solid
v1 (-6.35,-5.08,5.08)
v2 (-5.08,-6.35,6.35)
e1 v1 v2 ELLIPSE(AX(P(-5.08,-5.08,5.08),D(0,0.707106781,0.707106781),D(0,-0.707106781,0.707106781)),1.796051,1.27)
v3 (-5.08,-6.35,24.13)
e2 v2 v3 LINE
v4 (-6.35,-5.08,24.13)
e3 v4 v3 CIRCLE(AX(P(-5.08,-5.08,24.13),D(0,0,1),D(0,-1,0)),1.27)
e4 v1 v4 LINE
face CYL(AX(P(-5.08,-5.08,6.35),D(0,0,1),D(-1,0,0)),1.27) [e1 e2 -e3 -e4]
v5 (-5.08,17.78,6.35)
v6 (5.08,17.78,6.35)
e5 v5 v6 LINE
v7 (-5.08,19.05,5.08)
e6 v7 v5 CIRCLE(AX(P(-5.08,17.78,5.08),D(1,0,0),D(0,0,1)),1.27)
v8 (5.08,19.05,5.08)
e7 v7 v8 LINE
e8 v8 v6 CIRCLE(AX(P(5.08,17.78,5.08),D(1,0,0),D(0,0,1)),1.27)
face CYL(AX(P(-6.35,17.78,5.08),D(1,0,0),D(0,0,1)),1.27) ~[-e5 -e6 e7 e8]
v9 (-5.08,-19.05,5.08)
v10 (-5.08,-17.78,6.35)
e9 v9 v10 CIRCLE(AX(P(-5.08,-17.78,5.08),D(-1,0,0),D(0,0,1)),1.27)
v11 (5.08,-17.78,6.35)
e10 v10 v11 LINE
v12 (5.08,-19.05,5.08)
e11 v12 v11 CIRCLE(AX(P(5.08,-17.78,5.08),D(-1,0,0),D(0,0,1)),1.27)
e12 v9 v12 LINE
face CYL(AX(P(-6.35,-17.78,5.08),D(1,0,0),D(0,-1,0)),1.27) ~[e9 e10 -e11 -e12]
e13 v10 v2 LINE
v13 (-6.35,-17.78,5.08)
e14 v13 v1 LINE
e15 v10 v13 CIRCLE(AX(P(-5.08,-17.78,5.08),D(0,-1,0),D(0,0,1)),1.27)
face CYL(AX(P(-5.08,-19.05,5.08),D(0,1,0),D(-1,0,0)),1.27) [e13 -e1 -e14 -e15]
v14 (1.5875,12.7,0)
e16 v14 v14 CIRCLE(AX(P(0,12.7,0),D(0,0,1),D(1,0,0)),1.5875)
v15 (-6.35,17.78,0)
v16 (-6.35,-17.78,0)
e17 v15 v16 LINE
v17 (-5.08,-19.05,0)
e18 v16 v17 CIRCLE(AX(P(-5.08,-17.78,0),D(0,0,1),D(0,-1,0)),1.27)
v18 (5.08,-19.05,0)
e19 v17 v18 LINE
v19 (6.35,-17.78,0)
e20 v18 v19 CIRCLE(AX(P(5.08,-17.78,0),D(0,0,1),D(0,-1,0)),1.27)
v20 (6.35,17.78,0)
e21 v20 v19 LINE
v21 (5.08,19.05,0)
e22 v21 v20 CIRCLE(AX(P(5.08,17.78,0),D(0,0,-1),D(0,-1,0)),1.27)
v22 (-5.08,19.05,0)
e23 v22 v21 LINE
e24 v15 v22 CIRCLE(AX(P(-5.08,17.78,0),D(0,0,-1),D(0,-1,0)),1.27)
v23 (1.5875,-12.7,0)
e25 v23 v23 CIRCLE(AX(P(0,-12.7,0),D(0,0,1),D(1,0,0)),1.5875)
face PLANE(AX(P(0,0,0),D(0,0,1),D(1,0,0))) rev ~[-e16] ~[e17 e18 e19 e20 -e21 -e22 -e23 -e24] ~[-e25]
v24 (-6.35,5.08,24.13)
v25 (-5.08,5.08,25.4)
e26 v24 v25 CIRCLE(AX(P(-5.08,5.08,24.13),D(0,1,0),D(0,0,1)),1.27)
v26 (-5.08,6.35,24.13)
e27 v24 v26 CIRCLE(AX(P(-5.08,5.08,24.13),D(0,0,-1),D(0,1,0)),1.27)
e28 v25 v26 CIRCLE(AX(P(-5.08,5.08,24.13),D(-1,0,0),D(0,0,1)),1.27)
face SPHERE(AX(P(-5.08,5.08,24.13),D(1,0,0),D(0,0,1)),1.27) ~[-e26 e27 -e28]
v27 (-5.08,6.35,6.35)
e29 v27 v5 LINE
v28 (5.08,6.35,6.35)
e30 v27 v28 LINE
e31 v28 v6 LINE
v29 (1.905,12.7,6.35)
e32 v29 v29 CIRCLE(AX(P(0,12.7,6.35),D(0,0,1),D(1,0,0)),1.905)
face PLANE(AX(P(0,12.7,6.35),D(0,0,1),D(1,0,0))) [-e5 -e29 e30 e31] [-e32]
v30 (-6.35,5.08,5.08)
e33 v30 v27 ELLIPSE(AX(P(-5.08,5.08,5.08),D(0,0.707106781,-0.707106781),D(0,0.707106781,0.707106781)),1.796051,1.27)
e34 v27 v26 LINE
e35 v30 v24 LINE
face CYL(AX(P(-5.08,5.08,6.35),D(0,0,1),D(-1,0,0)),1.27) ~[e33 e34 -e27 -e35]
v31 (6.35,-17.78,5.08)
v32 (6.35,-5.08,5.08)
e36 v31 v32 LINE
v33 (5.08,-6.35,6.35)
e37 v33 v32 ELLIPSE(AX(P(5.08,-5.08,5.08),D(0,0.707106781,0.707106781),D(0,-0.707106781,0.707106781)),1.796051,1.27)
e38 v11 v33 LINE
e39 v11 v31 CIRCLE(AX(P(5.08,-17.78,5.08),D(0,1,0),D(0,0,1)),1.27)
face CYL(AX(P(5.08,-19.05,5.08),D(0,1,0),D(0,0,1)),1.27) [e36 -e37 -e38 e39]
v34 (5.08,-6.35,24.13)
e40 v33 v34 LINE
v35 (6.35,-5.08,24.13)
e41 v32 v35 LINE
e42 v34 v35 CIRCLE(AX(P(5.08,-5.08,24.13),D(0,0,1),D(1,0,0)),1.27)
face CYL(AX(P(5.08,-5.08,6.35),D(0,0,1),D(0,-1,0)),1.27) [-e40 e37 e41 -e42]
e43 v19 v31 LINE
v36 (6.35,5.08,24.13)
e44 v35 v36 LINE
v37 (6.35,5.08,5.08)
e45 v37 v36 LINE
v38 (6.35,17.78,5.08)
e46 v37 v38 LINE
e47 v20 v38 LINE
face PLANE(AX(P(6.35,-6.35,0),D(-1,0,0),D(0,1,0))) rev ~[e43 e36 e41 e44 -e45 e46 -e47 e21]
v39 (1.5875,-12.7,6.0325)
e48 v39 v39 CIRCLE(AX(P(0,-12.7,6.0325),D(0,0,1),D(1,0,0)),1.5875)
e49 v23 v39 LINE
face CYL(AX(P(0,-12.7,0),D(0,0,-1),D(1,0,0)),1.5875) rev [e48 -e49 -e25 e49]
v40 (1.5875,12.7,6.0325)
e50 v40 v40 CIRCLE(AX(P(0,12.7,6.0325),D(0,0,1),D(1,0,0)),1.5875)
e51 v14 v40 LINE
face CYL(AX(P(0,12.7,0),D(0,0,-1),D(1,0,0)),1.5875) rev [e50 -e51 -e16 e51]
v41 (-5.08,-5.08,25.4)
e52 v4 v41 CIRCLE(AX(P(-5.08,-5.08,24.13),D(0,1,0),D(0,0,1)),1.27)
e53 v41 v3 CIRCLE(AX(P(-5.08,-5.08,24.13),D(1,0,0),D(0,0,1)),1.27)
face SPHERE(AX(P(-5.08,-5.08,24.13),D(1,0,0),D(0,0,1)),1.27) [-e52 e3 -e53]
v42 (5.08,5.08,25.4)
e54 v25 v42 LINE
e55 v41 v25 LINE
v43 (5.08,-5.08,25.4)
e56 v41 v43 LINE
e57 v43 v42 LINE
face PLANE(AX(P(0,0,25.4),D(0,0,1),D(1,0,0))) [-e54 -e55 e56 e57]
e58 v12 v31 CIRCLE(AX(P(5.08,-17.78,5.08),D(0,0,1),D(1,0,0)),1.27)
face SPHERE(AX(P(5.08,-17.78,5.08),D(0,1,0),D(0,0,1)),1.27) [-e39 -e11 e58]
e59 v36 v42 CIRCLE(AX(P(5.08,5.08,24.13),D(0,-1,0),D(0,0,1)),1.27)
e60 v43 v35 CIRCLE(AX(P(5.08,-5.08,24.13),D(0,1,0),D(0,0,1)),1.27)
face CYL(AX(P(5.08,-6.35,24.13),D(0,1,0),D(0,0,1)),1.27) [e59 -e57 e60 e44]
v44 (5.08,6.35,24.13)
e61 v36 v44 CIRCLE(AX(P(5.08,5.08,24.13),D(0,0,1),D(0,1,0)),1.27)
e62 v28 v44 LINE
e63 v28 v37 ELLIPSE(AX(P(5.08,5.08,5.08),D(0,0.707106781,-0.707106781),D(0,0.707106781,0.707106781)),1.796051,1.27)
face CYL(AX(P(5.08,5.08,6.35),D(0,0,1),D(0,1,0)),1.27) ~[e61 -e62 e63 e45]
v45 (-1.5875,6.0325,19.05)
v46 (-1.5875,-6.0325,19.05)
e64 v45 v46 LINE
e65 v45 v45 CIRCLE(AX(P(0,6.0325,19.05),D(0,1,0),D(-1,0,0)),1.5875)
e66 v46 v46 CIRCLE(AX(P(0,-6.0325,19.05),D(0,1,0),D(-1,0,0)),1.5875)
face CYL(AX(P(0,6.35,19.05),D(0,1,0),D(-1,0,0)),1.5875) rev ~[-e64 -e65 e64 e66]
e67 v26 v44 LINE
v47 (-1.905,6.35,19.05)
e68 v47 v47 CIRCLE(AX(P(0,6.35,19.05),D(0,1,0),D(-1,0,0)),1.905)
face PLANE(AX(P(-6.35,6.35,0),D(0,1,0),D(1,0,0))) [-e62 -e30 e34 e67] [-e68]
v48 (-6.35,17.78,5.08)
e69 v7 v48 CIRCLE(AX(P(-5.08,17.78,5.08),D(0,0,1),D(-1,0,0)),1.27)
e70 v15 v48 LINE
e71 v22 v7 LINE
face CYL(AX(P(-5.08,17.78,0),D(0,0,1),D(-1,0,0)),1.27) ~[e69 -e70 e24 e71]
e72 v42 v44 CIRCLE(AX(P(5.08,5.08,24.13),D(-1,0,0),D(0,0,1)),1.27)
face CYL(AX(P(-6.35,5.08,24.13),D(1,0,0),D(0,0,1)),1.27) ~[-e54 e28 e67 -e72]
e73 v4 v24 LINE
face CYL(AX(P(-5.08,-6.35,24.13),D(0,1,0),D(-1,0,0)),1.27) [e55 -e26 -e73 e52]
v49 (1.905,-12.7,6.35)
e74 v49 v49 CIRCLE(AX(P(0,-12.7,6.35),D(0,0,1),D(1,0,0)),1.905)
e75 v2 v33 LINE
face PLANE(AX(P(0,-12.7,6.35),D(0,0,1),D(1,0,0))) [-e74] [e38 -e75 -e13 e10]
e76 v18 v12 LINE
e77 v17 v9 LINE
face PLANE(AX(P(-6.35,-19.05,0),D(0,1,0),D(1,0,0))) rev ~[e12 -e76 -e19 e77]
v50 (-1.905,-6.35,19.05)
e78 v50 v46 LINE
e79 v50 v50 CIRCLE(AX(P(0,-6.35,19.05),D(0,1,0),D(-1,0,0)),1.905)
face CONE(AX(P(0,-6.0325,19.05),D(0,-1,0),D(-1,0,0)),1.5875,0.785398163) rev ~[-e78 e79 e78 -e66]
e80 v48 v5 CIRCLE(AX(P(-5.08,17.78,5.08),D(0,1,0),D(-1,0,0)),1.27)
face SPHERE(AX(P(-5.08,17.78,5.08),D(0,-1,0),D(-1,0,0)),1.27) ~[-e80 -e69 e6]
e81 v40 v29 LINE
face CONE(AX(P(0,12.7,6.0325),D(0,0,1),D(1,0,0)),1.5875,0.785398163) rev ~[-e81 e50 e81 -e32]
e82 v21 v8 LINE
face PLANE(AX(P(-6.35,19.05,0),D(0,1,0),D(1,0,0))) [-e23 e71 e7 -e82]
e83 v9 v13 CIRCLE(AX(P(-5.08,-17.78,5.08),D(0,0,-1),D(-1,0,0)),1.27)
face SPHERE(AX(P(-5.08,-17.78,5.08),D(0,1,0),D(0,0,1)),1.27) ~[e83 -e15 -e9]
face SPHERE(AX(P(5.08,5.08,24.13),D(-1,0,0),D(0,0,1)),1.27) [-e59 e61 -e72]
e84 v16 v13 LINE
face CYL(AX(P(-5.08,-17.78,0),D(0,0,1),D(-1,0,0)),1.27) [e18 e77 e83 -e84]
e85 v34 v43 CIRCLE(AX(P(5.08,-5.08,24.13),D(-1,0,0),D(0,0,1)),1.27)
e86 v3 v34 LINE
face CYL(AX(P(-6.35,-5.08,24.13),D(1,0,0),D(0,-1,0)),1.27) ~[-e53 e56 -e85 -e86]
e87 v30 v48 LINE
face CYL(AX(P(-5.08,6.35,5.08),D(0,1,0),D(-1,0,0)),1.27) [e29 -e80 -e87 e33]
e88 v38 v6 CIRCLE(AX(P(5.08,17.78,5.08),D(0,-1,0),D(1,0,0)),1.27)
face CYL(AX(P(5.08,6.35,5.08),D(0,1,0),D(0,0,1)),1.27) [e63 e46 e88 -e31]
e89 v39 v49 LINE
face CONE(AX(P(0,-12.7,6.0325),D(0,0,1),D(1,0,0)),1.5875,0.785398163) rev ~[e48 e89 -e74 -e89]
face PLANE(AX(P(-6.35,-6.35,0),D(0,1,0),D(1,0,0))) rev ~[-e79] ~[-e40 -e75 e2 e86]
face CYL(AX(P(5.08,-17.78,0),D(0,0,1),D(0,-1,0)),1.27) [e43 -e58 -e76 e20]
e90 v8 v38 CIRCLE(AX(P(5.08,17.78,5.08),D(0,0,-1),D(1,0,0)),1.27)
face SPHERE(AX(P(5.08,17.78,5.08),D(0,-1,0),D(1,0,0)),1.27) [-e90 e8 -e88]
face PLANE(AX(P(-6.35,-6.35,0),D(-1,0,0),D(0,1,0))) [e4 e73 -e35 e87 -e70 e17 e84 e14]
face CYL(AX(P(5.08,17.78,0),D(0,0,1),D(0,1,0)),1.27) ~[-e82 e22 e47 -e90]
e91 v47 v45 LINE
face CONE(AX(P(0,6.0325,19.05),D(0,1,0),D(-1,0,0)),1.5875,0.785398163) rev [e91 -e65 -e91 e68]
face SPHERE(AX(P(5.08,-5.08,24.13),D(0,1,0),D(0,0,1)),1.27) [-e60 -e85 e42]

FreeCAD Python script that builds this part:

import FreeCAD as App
import Part
import Sketcher
Q = App.Units.Quantity


def edges_at(feature, points):
    """Names of the edges that pass closest to the given points."""
    edges = feature.Shape.Edges
    near = lambda p: min(range(len(edges)), key=lambda i: edges[i].distToShape(Part.Vertex(*p))[0])
    return sorted({f"Edge{near(p) + 1}" for p in points})

doc = App.newDocument("Part")
params = doc.addObject("Spreadsheet::Sheet", "Params")
for row, (alias, value) in enumerate([
    ("sketch1_diameter", "0.125 in"),
    ("sketch1_width", "0.5 in"),
    ("pad1_length", "0.25 in"),
    ("sketch2_diameter", "0.125 in"),
    ("sketch2_width", "0.5 in"),
    ("pad2_length", "0.25 in"),
    ("sketch3_width", "0.5 in"),
    ("pad3_length", "1 in"),
    ("sketch4_diameter", "0.125 in"),
    ("pocket1_length", "1 in"),
    ("fillet_radius", "0.05 in"),
    ("chamfer_size", "0.0125 in"),
], start=1):
    params.set(f"A{row}", alias)
    params.set(f"B{row}", "=" + value)
    params.setAlias(f"B{row}", alias)

body = doc.addObject("PartDesign::Body", "Body")

# Sketch on XY plane
sketch1 = body.newObject("Sketcher::SketchObject", "Sketch")
sketch1.AttachmentSupport = (doc.getObject("XY_Plane"), [""])
sketch1.MapMode = "FlatFace"
sketch1.addGeometry([
    Part.LineSegment(App.Vector(-6.3, 19.1, 0), App.Vector(-6.3, 6.3, 0)),  # 0
    Part.LineSegment(App.Vector(-6.3, 6.3, 0), App.Vector(6.3, 6.3, 0)),  # 1
    Part.LineSegment(App.Vector(6.3, 6.3, 0), App.Vector(6.3, 19.1, 0)),  # 2
    Part.LineSegment(App.Vector(6.3, 19.1, 0), App.Vector(-6.3, 19.1, 0)),  # 3
    Part.Circle(App.Vector(0, 12.7, 0), App.Vector(0, 0, 1), 1.6),  # 4
], False)
sketch1.addConstraint([
    Sketcher.Constraint("Coincident", 0, 2, 1, 1),
    Sketcher.Constraint("Coincident", 1, 2, 2, 1),
    Sketcher.Constraint("Coincident", 2, 2, 3, 1),
    Sketcher.Constraint("Coincident", 3, 2, 0, 1),
    Sketcher.Constraint("Vertical", 0),
    Sketcher.Constraint("Horizontal", 1),
    Sketcher.Constraint("Vertical", 2),
    Sketcher.Constraint("Horizontal", 3),
    Sketcher.Constraint("PointOnObject", 4, 3, -2),
    Sketcher.Constraint("Equal", 3, 0),
    Sketcher.Constraint("Diameter", 4, Q("0.125 in")),
    Sketcher.Constraint("DistanceX", 1, 1, 1, 2, Q("0.5 in")),
    Sketcher.Constraint("DistanceY", -1, 1, 4, 3, Q("0.5 in")),
    Sketcher.Constraint("DistanceX", 0, 2, -1, 1, Q("0.25 in")),
    Sketcher.Constraint("DistanceY", -1, 1, 0, 2, Q("0.25 in")),
])
sketch1.setExpression("Constraints[10]", "Params.sketch1_diameter")
sketch1.setExpression("Constraints[11]", "Params.sketch1_width")
pad1 = body.newObject("PartDesign::Pad", "Pad")
pad1.Profile = sketch1
pad1.setExpression("Length", "Params.pad1_length")
body2 = doc.addObject("PartDesign::Body", "Body001")

# Sketch on XY plane
sketch2 = body2.newObject("Sketcher::SketchObject", "Sketch001")
sketch2.AttachmentSupport = (doc.getObject("XY_Plane001"), [""])
sketch2.MapMode = "FlatFace"
sketch2.addGeometry([
    Part.LineSegment(App.Vector(-6.3, -6.3, 0), App.Vector(-6.3, -19.1, 0)),  # 0
    Part.LineSegment(App.Vector(-6.3, -19.1, 0), App.Vector(6.3, -19.1, 0)),  # 1
    Part.LineSegment(App.Vector(6.3, -19.1, 0), App.Vector(6.3, -6.3, 0)),  # 2
    Part.LineSegment(App.Vector(6.3, -6.3, 0), App.Vector(-6.3, -6.3, 0)),  # 3
    Part.Circle(App.Vector(0, -12.7, 0), App.Vector(0, 0, 1), 1.6),  # 4
], False)
sketch2.addConstraint([
    Sketcher.Constraint("Coincident", 0, 2, 1, 1),
    Sketcher.Constraint("Coincident", 1, 2, 2, 1),
    Sketcher.Constraint("Coincident", 2, 2, 3, 1),
    Sketcher.Constraint("Coincident", 3, 2, 0, 1),
    Sketcher.Constraint("Vertical", 0),
    Sketcher.Constraint("Horizontal", 1),
    Sketcher.Constraint("Vertical", 2),
    Sketcher.Constraint("Horizontal", 3),
    Sketcher.Constraint("PointOnObject", 4, 3, -2),
    Sketcher.Constraint("Equal", 3, 0),
    Sketcher.Constraint("Diameter", 4, Q("0.125 in")),
    Sketcher.Constraint("DistanceX", 1, 1, 1, 2, Q("0.5 in")),
    Sketcher.Constraint("DistanceY", 4, 3, -1, 1, Q("0.5 in")),
    Sketcher.Constraint("DistanceX", 0, 2, -1, 1, Q("0.25 in")),
    Sketcher.Constraint("DistanceY", 0, 2, -1, 1, Q("0.75 in")),
])
sketch2.setExpression("Constraints[10]", "Params.sketch2_diameter")
sketch2.setExpression("Constraints[11]", "Params.sketch2_width")
pad2 = body2.newObject("PartDesign::Pad", "Pad001")
pad2.Profile = sketch2
pad2.setExpression("Length", "Params.pad2_length")
body.AllowCompound = True
doc.recompute()

boolean = body.newObject("PartDesign::Boolean", "Boolean")
boolean.Type = "Fuse"
boolean.addObjects([body2])

# Sketch on XY plane
sketch3 = body.newObject("Sketcher::SketchObject", "Sketch002")
sketch3.AttachmentSupport = (doc.getObject("XY_Plane"), [""])
sketch3.MapMode = "FlatFace"
sketch3.addGeometry([
    Part.LineSegment(App.Vector(-6, 6, 0), App.Vector(-6, -6, 0)),
    Part.LineSegment(App.Vector(-6, -6, 0), App.Vector(6, -6, 0)),
    Part.LineSegment(App.Vector(6, -6, 0), App.Vector(6, 6, 0)),
    Part.LineSegment(App.Vector(6, 6, 0), App.Vector(-6, 6, 0)),
], False)
sketch3.addConstraint([
    Sketcher.Constraint("Coincident", 0, 2, 1, 1),
    Sketcher.Constraint("Coincident", 1, 2, 2, 1),
    Sketcher.Constraint("Coincident", 2, 2, 3, 1),
    Sketcher.Constraint("Coincident", 3, 2, 0, 1),
    Sketcher.Constraint("Vertical", 0),
    Sketcher.Constraint("Horizontal", 1),
    Sketcher.Constraint("Vertical", 2),
    Sketcher.Constraint("Horizontal", 3),
    Sketcher.Constraint("Symmetric", 0, 2, 2, 2, -1, 1),
    Sketcher.Constraint("Equal", 3, 0),
    Sketcher.Constraint("DistanceX", 1, 1, 1, 2, Q("0.5 in")),
])
sketch3.setExpression("Constraints[10]", "Params.sketch3_width")
pad3 = body.newObject("PartDesign::Pad", "Pad002")
pad3.Profile = sketch3
pad3.setExpression("Length", "Params.pad3_length")

# Sketch on XZ plane
sketch4 = body.newObject("Sketcher::SketchObject", "Sketch003")
sketch4.AttachmentSupport = (doc.getObject("XZ_Plane"), [""])
sketch4.MapMode = "FlatFace"
sketch4.AttachmentOffset = App.Placement(App.Vector(0, 0, -0.25 * 25.4), App.Rotation())
sketch4.addGeometry(Part.Circle(App.Vector(0, 19.1, 0), App.Vector(0, 0, 1), 1.6), False)
sketch4.addConstraint([
    Sketcher.Constraint("PointOnObject", 0, 3, -2),
    Sketcher.Constraint("Diameter", 0, Q("0.125 in")),
    Sketcher.Constraint("DistanceY", -1, 1, 0, 3, Q("0.75 in")),
])
sketch4.setExpression("Constraints[1]", "Params.sketch4_diameter")
pocket1 = body.newObject("PartDesign::Pocket", "Pocket")
pocket1.Profile = sketch4
pocket1.setExpression("Length", "Params.pocket1_length")
pocket1.Reversed = True
doc.recompute()

fillet = body.newObject("PartDesign::Fillet", "Fillet")
fillet.Base = (pocket1, edges_at(pocket1, [
    (0, 6.35, 25.4),
    (6.35, 0, 25.4),
    (0, -6.35, 25.4),
    (-6.35, 0, 25.4),
    (6.35, 6.35, 15.875),
    (6.35, -6.35, 15.875),
    (6.35, -12.7, 6.35),
    (6.35, 12.7, 6.35),
    (-6.35, 6.35, 15.875),
    (-6.35, 12.7, 6.35),
    (-6.35, -6.35, 15.875),
    (-6.35, -12.7, 6.35),
    (0, -19.05, 6.35),
    (-6.35, -19.05, 3.175),
    (6.35, -19.05, 3.175),
    (6.35, 19.05, 3.175),
    (-6.35, 19.05, 3.175),
    (0, 19.05, 6.35),
]))
fillet.setExpression("Radius", "Params.fillet_radius")
doc.recompute()

chamfer = body.newObject("PartDesign::Chamfer", "Chamfer")
chamfer.Base = (fillet, edges_at(fillet, [
    (-1.587, -12.7, 6.35),
    (-1.587, 12.7, 6.35),
    (1.587, 6.35, 19.05),
    (1.587, -6.35, 19.05),
]))
chamfer.setExpression("Size", "Params.chamfer_size")

doc.recompute()
